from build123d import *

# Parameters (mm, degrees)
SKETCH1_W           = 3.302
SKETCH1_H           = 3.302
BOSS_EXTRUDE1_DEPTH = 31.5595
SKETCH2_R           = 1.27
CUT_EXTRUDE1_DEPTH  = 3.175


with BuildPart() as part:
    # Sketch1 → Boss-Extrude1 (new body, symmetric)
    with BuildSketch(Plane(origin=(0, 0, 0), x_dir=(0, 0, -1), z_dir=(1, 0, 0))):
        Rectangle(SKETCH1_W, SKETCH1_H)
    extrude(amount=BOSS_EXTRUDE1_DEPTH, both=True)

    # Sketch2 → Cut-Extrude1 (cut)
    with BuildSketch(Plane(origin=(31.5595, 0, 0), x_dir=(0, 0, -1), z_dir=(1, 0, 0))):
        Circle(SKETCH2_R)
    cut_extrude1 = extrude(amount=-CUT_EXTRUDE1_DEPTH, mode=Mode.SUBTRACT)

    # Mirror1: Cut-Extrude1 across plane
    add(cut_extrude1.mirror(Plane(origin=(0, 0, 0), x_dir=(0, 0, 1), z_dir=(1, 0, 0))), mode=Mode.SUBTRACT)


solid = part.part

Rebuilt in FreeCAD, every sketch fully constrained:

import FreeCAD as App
import Part
import Sketcher

V = App.Vector
Q = App.Units.Quantity


def add_polygon(sketch, points):
    """Adds a closed chain of lines whose ends are joined by coincident constraints."""
    first, n = sketch.GeometryCount, len(points)
    for a, b in zip(points, points[1:] + points[:1]):
        sketch.addGeometry(Part.LineSegment(App.Vector(*a, 0), App.Vector(*b, 0)), False)
    for i in range(n):
        sketch.addConstraint(Sketcher.Constraint("Coincident", first + i, 2, first + (i + 1) % n, 1))

doc = App.newDocument("Part")
body = doc.addObject("PartDesign::Body", "Body")

sketch1 = doc.addObject("Sketcher::SketchObject", "Sketch")
body.addObject(sketch1)
sketch1.AttachmentSupport = (doc.YZ_Plane, [""])
sketch1.MapMode = "FlatFace"
add_polygon(sketch1, [(1.7, 1.7), (-1.7, 1.7), (-1.7, -1.7), (1.7, -1.7)])
sketch1.addConstraint(Sketcher.Constraint("Horizontal", 0))
sketch1.addConstraint(Sketcher.Constraint("Vertical", 1))
sketch1.addConstraint(Sketcher.Constraint("Horizontal", 2))
sketch1.addConstraint(Sketcher.Constraint("Vertical", 3))
sketch1.addConstraint(Sketcher.Constraint("Symmetric", 0, 2, 2, 2, -1, 1))
sketch1.addConstraint(Sketcher.Constraint("Equal", 2, 1))
sketch1.addConstraint(Sketcher.Constraint("DistanceX", 0, 2, 0, 1, Q("0.13 in")))
pad1 = doc.addObject("PartDesign::Pad", "Pad")
body.addObject(pad1)
pad1.Profile = sketch1
pad1.Length = Q("2.485 in")
pad1.Midplane = True

sketch2 = doc.addObject("Sketcher::SketchObject", "Sketch001")
body.addObject(sketch2)
sketch2.AttachmentSupport = (doc.YZ_Plane, [""])
sketch2.MapMode = "FlatFace"
sketch2.AttachmentOffset = App.Placement(V(0, 0, 1.2425 * 25.4), App.Rotation())
sketch2.addGeometry(Part.Circle(V(0, 0, 0), V(0, 0, 1), 1.3), False)
sketch2.addConstraint(Sketcher.Constraint("Coincident", 0, 3, -1, 1))
sketch2.addConstraint(Sketcher.Constraint("Diameter", 0, Q("0.1 in")))
pocket1 = doc.addObject("PartDesign::Pocket", "Pocket")
body.addObject(pocket1)
pocket1.Profile = sketch2
pocket1.Length = Q("0.125 in")
doc.recompute()

mirrored = doc.addObject("PartDesign::Mirrored", "Mirrored")
body.addObject(mirrored)
mirrored.Originals = [pocket1]
mirrored.MirrorPlane = (doc.YZ_Plane, [""])
body.Tip = mirrored

doc.recompute()
